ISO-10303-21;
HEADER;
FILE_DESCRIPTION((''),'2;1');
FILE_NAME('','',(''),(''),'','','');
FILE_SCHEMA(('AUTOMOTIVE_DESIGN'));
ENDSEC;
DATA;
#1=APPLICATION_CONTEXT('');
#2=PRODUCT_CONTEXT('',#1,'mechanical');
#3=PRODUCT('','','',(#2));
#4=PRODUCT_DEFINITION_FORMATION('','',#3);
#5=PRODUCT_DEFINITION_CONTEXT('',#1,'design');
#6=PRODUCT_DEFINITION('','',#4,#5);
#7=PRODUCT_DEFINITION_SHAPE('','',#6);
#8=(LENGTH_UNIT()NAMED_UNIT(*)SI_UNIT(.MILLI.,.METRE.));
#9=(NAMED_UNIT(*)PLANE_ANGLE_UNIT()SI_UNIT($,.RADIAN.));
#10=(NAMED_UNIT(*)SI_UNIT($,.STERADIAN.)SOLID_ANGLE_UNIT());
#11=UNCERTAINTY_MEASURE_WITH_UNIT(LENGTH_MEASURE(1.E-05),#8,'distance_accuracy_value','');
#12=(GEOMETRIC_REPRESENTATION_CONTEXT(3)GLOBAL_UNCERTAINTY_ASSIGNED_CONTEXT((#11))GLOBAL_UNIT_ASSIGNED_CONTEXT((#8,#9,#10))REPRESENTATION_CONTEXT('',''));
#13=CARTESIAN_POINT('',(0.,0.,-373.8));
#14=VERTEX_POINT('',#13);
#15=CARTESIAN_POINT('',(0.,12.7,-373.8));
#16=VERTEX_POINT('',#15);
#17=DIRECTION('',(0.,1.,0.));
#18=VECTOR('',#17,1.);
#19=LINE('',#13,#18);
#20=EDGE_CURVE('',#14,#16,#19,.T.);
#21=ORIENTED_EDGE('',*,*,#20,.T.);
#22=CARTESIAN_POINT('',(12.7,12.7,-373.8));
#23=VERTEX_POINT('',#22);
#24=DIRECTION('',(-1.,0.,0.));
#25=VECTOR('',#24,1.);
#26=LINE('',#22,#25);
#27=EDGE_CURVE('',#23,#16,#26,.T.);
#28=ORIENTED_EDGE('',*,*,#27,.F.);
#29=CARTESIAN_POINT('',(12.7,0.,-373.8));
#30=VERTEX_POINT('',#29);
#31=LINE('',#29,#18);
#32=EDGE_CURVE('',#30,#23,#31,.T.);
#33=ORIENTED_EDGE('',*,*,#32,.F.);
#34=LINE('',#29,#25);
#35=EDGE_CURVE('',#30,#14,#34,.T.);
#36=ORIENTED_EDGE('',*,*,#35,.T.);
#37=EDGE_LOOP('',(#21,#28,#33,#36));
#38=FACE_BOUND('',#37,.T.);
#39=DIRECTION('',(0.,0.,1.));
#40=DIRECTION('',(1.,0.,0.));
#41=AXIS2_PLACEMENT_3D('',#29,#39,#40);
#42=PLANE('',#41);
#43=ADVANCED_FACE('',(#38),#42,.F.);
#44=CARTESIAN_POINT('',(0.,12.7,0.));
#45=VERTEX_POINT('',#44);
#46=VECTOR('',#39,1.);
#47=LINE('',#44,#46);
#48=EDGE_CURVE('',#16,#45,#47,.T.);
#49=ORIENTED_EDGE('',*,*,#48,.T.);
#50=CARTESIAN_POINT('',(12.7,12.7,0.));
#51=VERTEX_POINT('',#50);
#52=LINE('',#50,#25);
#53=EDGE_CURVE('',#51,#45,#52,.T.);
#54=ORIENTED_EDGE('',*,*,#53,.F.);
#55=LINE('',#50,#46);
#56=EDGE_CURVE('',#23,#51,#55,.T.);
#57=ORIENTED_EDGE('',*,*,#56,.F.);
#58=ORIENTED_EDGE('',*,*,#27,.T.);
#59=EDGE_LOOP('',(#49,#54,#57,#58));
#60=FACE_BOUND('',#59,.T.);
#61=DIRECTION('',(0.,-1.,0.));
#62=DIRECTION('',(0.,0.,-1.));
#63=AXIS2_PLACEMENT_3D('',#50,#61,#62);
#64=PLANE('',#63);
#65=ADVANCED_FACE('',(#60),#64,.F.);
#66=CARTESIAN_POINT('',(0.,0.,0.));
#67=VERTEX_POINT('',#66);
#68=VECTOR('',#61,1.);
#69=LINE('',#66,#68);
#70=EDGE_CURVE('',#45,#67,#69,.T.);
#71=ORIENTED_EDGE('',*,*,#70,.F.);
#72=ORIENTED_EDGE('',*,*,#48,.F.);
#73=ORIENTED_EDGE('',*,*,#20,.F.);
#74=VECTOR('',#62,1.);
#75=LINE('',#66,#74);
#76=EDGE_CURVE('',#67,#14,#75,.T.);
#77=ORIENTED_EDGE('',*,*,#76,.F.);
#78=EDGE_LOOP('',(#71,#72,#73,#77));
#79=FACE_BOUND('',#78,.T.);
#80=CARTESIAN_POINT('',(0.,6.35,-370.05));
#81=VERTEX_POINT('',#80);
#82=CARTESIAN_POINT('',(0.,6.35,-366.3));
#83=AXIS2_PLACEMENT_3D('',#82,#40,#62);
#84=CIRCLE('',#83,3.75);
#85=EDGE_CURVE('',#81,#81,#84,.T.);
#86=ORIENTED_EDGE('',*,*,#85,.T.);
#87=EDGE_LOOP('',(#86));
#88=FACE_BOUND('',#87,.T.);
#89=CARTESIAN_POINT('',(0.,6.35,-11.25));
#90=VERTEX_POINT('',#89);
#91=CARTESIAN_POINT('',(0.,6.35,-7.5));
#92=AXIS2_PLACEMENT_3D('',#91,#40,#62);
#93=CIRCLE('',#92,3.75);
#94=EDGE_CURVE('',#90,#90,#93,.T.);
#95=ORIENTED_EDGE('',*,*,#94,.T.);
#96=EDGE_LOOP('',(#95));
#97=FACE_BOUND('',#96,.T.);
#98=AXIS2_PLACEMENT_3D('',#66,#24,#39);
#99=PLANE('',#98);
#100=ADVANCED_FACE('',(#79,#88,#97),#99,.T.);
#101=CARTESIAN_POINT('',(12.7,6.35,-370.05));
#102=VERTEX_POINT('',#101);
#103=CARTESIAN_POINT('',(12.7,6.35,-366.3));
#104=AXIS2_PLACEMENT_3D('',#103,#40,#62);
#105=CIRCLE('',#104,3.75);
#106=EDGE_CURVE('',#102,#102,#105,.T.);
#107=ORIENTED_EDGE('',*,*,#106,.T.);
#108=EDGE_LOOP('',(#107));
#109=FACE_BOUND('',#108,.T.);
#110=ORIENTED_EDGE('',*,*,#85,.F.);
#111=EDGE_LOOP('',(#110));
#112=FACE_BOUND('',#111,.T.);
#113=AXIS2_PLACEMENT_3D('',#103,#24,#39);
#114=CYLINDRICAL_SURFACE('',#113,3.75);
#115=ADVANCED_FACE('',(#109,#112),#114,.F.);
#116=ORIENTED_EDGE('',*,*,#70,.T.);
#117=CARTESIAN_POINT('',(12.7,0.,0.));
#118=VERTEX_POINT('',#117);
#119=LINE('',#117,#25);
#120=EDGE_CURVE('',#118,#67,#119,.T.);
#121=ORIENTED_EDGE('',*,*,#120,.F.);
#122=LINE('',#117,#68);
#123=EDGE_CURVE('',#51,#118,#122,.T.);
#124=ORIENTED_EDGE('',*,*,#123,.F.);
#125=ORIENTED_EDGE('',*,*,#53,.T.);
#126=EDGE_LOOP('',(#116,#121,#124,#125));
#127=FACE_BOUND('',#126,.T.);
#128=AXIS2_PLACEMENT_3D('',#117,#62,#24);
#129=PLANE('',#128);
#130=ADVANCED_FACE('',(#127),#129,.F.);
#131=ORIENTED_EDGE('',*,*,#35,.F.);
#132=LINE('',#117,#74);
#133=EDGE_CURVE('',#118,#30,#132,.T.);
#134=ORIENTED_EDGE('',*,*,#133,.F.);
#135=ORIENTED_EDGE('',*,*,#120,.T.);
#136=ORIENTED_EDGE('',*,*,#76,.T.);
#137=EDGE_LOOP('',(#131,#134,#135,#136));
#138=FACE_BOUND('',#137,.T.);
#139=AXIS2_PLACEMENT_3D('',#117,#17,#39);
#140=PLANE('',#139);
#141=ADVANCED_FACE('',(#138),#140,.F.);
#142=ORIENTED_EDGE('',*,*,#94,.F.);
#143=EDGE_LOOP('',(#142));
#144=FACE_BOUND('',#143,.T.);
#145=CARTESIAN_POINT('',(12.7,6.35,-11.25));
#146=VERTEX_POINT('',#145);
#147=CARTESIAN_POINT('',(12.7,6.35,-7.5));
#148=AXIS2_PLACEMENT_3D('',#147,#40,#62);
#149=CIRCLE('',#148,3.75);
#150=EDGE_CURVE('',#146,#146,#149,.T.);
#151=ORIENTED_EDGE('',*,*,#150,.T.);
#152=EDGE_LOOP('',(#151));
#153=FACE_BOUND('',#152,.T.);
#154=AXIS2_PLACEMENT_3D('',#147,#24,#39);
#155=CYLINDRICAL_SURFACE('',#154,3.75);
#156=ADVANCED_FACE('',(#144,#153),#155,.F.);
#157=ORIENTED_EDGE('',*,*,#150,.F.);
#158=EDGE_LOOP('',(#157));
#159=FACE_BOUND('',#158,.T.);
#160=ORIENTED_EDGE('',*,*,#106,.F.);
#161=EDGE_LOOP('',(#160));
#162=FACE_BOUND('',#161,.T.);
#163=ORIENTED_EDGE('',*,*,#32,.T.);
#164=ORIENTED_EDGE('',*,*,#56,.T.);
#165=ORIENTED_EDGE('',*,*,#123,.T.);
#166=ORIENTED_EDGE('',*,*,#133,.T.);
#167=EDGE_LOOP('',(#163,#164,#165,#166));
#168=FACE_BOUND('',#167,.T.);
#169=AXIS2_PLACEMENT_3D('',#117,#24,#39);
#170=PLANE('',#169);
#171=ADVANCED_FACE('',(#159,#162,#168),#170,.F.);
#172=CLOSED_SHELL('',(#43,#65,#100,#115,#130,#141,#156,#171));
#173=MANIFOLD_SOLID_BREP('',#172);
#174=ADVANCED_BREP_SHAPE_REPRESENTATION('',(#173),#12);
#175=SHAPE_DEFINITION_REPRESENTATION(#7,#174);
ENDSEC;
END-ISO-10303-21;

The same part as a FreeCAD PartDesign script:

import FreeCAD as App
import Part
import Sketcher
Q = App.Units.Quantity

doc = App.newDocument("Part")
body = doc.addObject("PartDesign::Body", "Body")

sketch1 = doc.addObject("Sketcher::SketchObject", "Sketch")
body.addObject(sketch1)
sketch1.AttachmentSupport = (doc.YZ_Plane, [""])
sketch1.MapMode = "FlatFace"
sketch1.addGeometry([
    Part.LineSegment(App.Vector(12.7, 0, 0), App.Vector(0, 0, 0)),
    Part.LineSegment(App.Vector(0, 0, 0), App.Vector(0, -373.8, 0)),
    Part.LineSegment(App.Vector(0, -373.8, 0), App.Vector(12.7, -373.8, 0)),
    Part.LineSegment(App.Vector(12.7, -373.8, 0), App.Vector(12.7, 0, 0)),
    Part.Circle(App.Vector(6.3, -7.5, 0), App.Vector(0, 0, 1), 3.8),
    Part.Circle(App.Vector(6.3, -366.3, 0), App.Vector(0, 0, 1), 3.8),
], False)
sketch1.addConstraint([
    Sketcher.Constraint("Coincident", 0, 2, 1, 1),
    Sketcher.Constraint("Coincident", 1, 2, 2, 1),
    Sketcher.Constraint("Coincident", 2, 2, 3, 1),
    Sketcher.Constraint("Coincident", 3, 2, 0, 1),
    Sketcher.Constraint("Horizontal", 0),
    Sketcher.Constraint("Vertical", 1),
    Sketcher.Constraint("Horizontal", 2),
    Sketcher.Constraint("Vertical", 3),
    Sketcher.Constraint("Coincident", 0, 2, -1, 1),
    Sketcher.Constraint("Equal", 4, 5),
    Sketcher.Constraint("Vertical", 4, 3, 5, 3),
    Sketcher.Constraint("Diameter", 4, Q("7.5 mm")),
    Sketcher.Constraint("DistanceX", 0, 2, 0, 1, Q("12.7 mm")),
    Sketcher.Constraint("DistanceY", 1, 2, 1, 1, Q("373.8 mm")),
    Sketcher.Constraint("DistanceY", 4, 3, -1, 1, Q("7.5 mm")),
    Sketcher.Constraint("DistanceY", 5, 3, -1, 1, Q("366.3 mm")),
    Sketcher.Constraint("DistanceX", -1, 1, 4, 3, Q("6.35 mm")),
])
pad1 = doc.addObject("PartDesign::Pad", "Pad")
body.addObject(pad1)
pad1.Profile = sketch1
pad1.Length = 12.7

doc.recompute()
